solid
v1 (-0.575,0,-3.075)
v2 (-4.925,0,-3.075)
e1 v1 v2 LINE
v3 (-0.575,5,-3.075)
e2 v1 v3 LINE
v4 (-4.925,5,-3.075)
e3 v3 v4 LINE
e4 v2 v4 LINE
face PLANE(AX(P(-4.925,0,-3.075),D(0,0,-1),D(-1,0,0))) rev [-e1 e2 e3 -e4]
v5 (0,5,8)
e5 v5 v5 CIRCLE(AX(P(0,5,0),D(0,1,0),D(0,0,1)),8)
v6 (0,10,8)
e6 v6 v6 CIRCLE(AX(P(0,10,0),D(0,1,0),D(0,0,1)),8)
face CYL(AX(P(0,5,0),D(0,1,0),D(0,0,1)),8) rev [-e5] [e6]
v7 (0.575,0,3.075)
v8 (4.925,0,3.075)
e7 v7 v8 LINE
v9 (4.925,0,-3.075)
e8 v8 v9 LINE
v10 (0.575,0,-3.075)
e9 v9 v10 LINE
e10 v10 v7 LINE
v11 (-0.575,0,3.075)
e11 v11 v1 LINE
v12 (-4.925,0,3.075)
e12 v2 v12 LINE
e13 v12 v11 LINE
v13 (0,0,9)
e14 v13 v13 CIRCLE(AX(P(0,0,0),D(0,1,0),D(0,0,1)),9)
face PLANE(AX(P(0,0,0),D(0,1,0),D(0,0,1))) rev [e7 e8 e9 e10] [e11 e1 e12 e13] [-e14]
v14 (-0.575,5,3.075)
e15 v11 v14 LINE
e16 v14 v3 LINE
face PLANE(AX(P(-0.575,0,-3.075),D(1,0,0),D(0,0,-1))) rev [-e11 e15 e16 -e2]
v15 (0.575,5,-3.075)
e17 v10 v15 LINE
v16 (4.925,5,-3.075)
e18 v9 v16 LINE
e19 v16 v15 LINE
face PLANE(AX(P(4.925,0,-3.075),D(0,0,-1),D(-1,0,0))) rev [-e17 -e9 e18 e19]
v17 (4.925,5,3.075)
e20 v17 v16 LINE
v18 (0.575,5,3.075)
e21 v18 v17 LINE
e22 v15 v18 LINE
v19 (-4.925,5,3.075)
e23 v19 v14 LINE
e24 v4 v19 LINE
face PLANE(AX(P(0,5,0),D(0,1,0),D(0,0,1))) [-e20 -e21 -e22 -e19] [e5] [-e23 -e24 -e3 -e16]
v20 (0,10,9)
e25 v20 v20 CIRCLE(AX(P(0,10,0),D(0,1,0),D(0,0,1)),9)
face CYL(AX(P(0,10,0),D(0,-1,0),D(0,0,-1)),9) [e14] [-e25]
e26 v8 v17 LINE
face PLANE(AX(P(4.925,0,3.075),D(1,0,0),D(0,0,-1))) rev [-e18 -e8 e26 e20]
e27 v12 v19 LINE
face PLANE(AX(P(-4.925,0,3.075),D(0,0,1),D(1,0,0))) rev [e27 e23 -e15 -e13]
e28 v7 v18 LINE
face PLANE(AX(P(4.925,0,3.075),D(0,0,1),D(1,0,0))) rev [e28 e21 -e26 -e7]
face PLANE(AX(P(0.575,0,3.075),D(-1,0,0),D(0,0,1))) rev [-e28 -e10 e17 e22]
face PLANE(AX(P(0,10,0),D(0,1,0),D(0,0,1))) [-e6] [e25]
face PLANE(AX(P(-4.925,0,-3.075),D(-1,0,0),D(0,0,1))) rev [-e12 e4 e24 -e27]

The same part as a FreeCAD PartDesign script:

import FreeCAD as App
import Part
import Sketcher


def add_polygon(sketch, points):
    """Adds a closed chain of lines whose ends are joined by coincident constraints."""
    first, n = sketch.GeometryCount, len(points)
    for a, b in zip(points, points[1:] + points[:1]):
        sketch.addGeometry(Part.LineSegment(App.Vector(*a, 0), App.Vector(*b, 0)), False)
    for i in range(n):
        sketch.addConstraint(Sketcher.Constraint("Coincident", first + i, 2, first + (i + 1) % n, 1))

doc = App.newDocument("Part")
body = doc.addObject("PartDesign::Body", "Body")

# Sketch on XZ plane
sketch1 = body.newObject("Sketcher::SketchObject", "Sketch")
sketch1.AttachmentSupport = (doc.getObject("XZ_Plane"), [""])
sketch1.MapMode = "FlatFace"
sketch1.addGeometry(Part.Circle(App.Vector(0, 0, 0), App.Vector(0, 0, 1), 9), False)
sketch1.addConstraint(Sketcher.Constraint("Coincident", 0, 3, -1, 1))
sketch1.addConstraint(Sketcher.Constraint("Diameter", 0, 18.0))
pad1 = body.newObject("PartDesign::Pad", "Pad")
pad1.Profile = sketch1
pad1.Length = 10
pad1.Reversed = True

# Sketch on XZ plane
sketch2 = body.newObject("Sketcher::SketchObject", "Sketch001")
sketch2.AttachmentSupport = (doc.getObject("XZ_Plane"), [""])
sketch2.MapMode = "FlatFace"
sketch2.AttachmentOffset = App.Placement(App.Vector(0, 0, -10), App.Rotation())
sketch2.addGeometry(Part.Circle(App.Vector(0, 0, 0), App.Vector(0, 0, 1), 8), False)
sketch2.addConstraint(Sketcher.Constraint("Coincident", 0, 3, -1, 1))
sketch2.addConstraint(Sketcher.Constraint("Diameter", 0, 16.0))
pocket1 = body.newObject("PartDesign::Pocket", "Pocket")
pocket1.Profile = sketch2
pocket1.Length = 5
pocket1.Reversed = True

# Sketch on XZ plane
sketch3 = body.newObject("Sketcher::SketchObject", "Sketch002")
sketch3.AttachmentSupport = (doc.getObject("XZ_Plane"), [""])
sketch3.MapMode = "FlatFace"
sketch3.AttachmentOffset = App.Placement(App.Vector(0, 0, -5), App.Rotation())
add_polygon(sketch3, [(0.6, -3.1), (0.6, 3.1), (4.9, 3.1), (4.9, -3.1)])  # lines 0-3
add_polygon(sketch3, [(-4.9, -3.1), (-4.9, 3.1), (-0.6, 3.1), (-0.6, -3.1)])  # lines 4-7
sketch3.addConstraint(Sketcher.Constraint("Vertical", 0))
sketch3.addConstraint(Sketcher.Constraint("Horizontal", 1))
sketch3.addConstraint(Sketcher.Constraint("Vertical", 2))
sketch3.addConstraint(Sketcher.Constraint("Horizontal", 3))
sketch3.addConstraint(Sketcher.Constraint("Vertical", 4))
sketch3.addConstraint(Sketcher.Constraint("Horizontal", 5))
sketch3.addConstraint(Sketcher.Constraint("Vertical", 6))
sketch3.addConstraint(Sketcher.Constraint("Horizontal", 7))
sketch3.addConstraint(Sketcher.Constraint("Symmetric", 2, 2, 4, 2, -1, 1))
sketch3.addConstraint(Sketcher.Constraint("Symmetric", 0, 2, 6, 2, -1, 1))
sketch3.addConstraint(Sketcher.Constraint("Horizontal", 1, 2, 4, 2))
sketch3.addConstraint(Sketcher.Constraint("DistanceX", 1, 1, 1, 2, 4.35))
sketch3.addConstraint(Sketcher.Constraint("DistanceY", 0, 1, 0, 2, 6.15))
sketch3.addConstraint(Sketcher.Constraint("DistanceX", 4, 2, 0, 2, 5.5))
pocket2 = body.newObject("PartDesign::Pocket", "Pocket001")
pocket2.Profile = sketch3
pocket2.Type = "ThroughAll"
pocket2.Reversed = True

doc.recompute()
